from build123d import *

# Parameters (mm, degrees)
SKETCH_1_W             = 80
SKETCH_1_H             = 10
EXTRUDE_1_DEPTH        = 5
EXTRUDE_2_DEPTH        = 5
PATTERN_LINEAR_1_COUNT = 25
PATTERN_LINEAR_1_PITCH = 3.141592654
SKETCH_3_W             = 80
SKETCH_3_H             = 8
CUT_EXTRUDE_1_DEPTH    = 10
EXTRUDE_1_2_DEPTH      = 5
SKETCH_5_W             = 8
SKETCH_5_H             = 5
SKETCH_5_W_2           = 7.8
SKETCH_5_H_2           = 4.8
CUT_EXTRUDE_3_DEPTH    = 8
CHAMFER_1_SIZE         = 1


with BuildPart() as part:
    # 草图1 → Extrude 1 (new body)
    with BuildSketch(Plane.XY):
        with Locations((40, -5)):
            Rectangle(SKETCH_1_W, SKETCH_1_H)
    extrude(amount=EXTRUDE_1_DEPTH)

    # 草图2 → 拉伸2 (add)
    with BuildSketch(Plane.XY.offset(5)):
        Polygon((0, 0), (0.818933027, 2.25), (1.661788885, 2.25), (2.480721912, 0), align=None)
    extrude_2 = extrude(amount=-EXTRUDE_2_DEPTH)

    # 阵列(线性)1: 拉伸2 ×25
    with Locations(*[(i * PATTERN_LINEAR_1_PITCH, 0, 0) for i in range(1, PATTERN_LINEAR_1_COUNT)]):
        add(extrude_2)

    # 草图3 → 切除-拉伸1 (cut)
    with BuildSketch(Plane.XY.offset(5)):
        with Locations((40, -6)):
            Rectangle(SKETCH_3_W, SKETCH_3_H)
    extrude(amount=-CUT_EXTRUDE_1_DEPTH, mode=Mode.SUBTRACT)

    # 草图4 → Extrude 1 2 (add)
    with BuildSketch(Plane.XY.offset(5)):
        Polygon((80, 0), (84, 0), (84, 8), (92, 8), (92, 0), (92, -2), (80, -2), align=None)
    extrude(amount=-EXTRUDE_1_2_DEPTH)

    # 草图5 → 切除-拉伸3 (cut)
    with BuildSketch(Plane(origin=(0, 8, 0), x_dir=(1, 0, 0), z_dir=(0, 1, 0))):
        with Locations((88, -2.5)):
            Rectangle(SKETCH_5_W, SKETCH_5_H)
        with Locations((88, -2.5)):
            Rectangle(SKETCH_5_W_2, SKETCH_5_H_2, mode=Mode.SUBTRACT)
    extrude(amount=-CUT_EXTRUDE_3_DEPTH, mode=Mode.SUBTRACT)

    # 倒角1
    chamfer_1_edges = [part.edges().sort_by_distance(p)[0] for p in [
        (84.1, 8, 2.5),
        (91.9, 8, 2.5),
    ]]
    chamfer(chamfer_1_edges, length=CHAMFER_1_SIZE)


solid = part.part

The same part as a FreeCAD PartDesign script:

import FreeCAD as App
import Part
import Sketcher
Q = App.Units.Quantity


def edges_at(feature, points):
    """Names of the edges that pass closest to the given points."""
    edges = feature.Shape.Edges
    near = lambda p: min(range(len(edges)), key=lambda i: edges[i].distToShape(Part.Vertex(*p))[0])
    return sorted({f"Edge{near(p) + 1}" for p in points})


def add_polygon(sketch, points):
    """Adds a closed chain of lines whose ends are joined by coincident constraints."""
    first, n = sketch.GeometryCount, len(points)
    for a, b in zip(points, points[1:] + points[:1]):
        sketch.addGeometry(Part.LineSegment(App.Vector(*a, 0), App.Vector(*b, 0)), False)
    for i in range(n):
        sketch.addConstraint(Sketcher.Constraint("Coincident", first + i, 2, first + (i + 1) % n, 1))

doc = App.newDocument("Part")
params = doc.addObject("Spreadsheet::Sheet", "Params")
for row, (alias, value) in enumerate([
    ("sketch1_width", "80 mm"),
    ("sketch1_height", "10 mm"),
    ("pad1_length", "5 mm"),
    ("pad2_length", "5 mm"),
    ("linearpattern_pitch", "3.141593 mm"),
    ("sketch3_width", "80 mm"),
    ("sketch3_height", "8 mm"),
    ("pocket1_length", "10 mm"),
    ("sketch4_width", "4 mm"),
    ("sketch4_width2", "12 mm"),
    ("sketch4_height", "2 mm"),
    ("pad3_length", "5 mm"),
    ("sketch5_width", "8 mm"),
    ("sketch5_height", "5 mm"),
    ("sketch5_width2", "7.8 mm"),
    ("sketch5_height2", "4.8 mm"),
    ("pocket2_length", "8 mm"),
    ("chamfer_size", "1 mm"),
], start=1):
    params.set(f"A{row}", alias)
    params.set(f"B{row}", "=" + value)
    params.setAlias(f"B{row}", alias)

body = doc.addObject("PartDesign::Body", "Body")

# Sketch on XY plane
sketch1 = body.newObject("Sketcher::SketchObject", "Sketch")
sketch1.AttachmentSupport = (doc.getObject("XY_Plane"), [""])
sketch1.MapMode = "FlatFace"
add_polygon(sketch1, [(0, 0), (0, -10), (80, -10), (80, 0)])  # lines 0-3
sketch1.addConstraint(Sketcher.Constraint("Vertical", 0))
sketch1.addConstraint(Sketcher.Constraint("Horizontal", 1))
sketch1.addConstraint(Sketcher.Constraint("Vertical", 2))
sketch1.addConstraint(Sketcher.Constraint("Horizontal", 3))
sketch1.addConstraint(Sketcher.Constraint("Coincident", 3, 2, -1, 1))
sketch1.addConstraint(Sketcher.Constraint("DistanceX", 1, 1, 1, 2, 80.0))
sketch1.addConstraint(Sketcher.Constraint("DistanceY", 0, 2, 0, 1, 10.0))
sketch1.setExpression("Constraints[9]", "Params.sketch1_width")
sketch1.setExpression("Constraints[10]", "Params.sketch1_height")
pad1 = body.newObject("PartDesign::Pad", "Pad")
pad1.Profile = sketch1
pad1.setExpression("Length", "Params.pad1_length")

# Sketch on XY plane
sketch2 = body.newObject("Sketcher::SketchObject", "Sketch001")
sketch2.AttachmentSupport = (doc.getObject("XY_Plane"), [""])
sketch2.MapMode = "FlatFace"
sketch2.AttachmentOffset = App.Placement(App.Vector(0, 0, 5), App.Rotation())
add_polygon(sketch2, [(0.8, 2.2), (0, 0), (2.5, 0), (1.7, 2.2)])  # lines 0-3
sketch2.addConstraint(Sketcher.Constraint("Horizontal", 1))
sketch2.addConstraint(Sketcher.Constraint("Horizontal", 3))
sketch2.addConstraint(Sketcher.Constraint("Coincident", 0, 2, -1, 1))
sketch2.addConstraint(Sketcher.Constraint("Equal", 0, 2))
sketch2.addConstraint(Sketcher.Constraint("Angle", 0, Q("-110 deg")))
sketch2.addConstraint(Sketcher.Constraint("DistanceY", -1, 1, 2, 2, 2.25))
sketch2.addConstraint(Sketcher.Constraint("DistanceX", 1, 1, 1, 2, 2.480722))
pad2 = body.newObject("PartDesign::Pad", "Pad001")
pad2.Profile = sketch2
pad2.setExpression("Length", "Params.pad2_length")
pad2.Reversed = True
doc.recompute()

linearpattern = body.newObject("PartDesign::LinearPattern", "LinearPattern")
linearpattern.Originals = [pad2]
linearpattern.Direction = (doc.getObject("X_Axis"), [""])
linearpattern.Mode = "offset"
linearpattern.setExpression("Offset", "Params.linearpattern_pitch")
linearpattern.Occurrences = 25
body.Tip = linearpattern

# Sketch on XY plane
sketch3 = body.newObject("Sketcher::SketchObject", "Sketch002")
sketch3.AttachmentSupport = (doc.getObject("XY_Plane"), [""])
sketch3.MapMode = "FlatFace"
sketch3.AttachmentOffset = App.Placement(App.Vector(0, 0, 5), App.Rotation())
add_polygon(sketch3, [(0, -2), (0, -10), (80, -10), (80, -2)])  # lines 0-3
sketch3.addConstraint(Sketcher.Constraint("Vertical", 0))
sketch3.addConstraint(Sketcher.Constraint("Horizontal", 1))
sketch3.addConstraint(Sketcher.Constraint("Vertical", 2))
sketch3.addConstraint(Sketcher.Constraint("Horizontal", 3))
sketch3.addConstraint(Sketcher.Constraint("PointOnObject", 0, 2, -2))
sketch3.addConstraint(Sketcher.Constraint("DistanceX", 1, 1, 1, 2, 80.0))
sketch3.addConstraint(Sketcher.Constraint("DistanceY", 0, 2, 0, 1, 8.0))
sketch3.addConstraint(Sketcher.Constraint("DistanceY", 0, 2, -1, 1, 10.0))
sketch3.setExpression("Constraints[9]", "Params.sketch3_width")
sketch3.setExpression("Constraints[10]", "Params.sketch3_height")
pocket1 = body.newObject("PartDesign::Pocket", "Pocket")
pocket1.Profile = sketch3
pocket1.setExpression("Length", "Params.pocket1_length")

# Sketch on XY plane
sketch4 = body.newObject("Sketcher::SketchObject", "Sketch003")
sketch4.AttachmentSupport = (doc.getObject("XY_Plane"), [""])
sketch4.MapMode = "FlatFace"
sketch4.AttachmentOffset = App.Placement(App.Vector(0, 0, 5), App.Rotation())
add_polygon(sketch4, [(84, 0), (80, 0), (80, -2), (92, -2), (92, 8), (84, 8)])  # lines 0-5
sketch4.addConstraint(Sketcher.Constraint("Horizontal", 0))
sketch4.addConstraint(Sketcher.Constraint("Vertical", 1))
sketch4.addConstraint(Sketcher.Constraint("Horizontal", 2))
sketch4.addConstraint(Sketcher.Constraint("Vertical", 3))
sketch4.addConstraint(Sketcher.Constraint("Horizontal", 4))
sketch4.addConstraint(Sketcher.Constraint("Vertical", 5))
sketch4.addConstraint(Sketcher.Constraint("PointOnObject", 0, 2, -1))
sketch4.addConstraint(Sketcher.Constraint("Equal", 4, 5))
sketch4.addConstraint(Sketcher.Constraint("DistanceX", 0, 2, 0, 1, 4.0))
sketch4.addConstraint(Sketcher.Constraint("DistanceX", 2, 1, 2, 2, 12.0))
sketch4.addConstraint(Sketcher.Constraint("DistanceY", 1, 2, 1, 1, 2.0))
sketch4.addConstraint(Sketcher.Constraint("DistanceX", -1, 1, 0, 2, 80.0))
sketch4.setExpression("Constraints[14]", "Params.sketch4_width")
sketch4.setExpression("Constraints[15]", "Params.sketch4_width2")
sketch4.setExpression("Constraints[16]", "Params.sketch4_height")
pad3 = body.newObject("PartDesign::Pad", "Pad002")
pad3.Profile = sketch4
pad3.setExpression("Length", "Params.pad3_length")
pad3.Reversed = True

# Sketch on XZ plane
sketch5 = body.newObject("Sketcher::SketchObject", "Sketch004")
sketch5.AttachmentSupport = (doc.getObject("XZ_Plane"), [""])
sketch5.MapMode = "FlatFace"
sketch5.AttachmentOffset = App.Placement(App.Vector(0, 0, -8), App.Rotation())
add_polygon(sketch5, [(84, 0), (84, 5), (92, 5), (92, 0)])  # lines 0-3
add_polygon(sketch5, [(91.9, 4.9), (84.1, 4.9), (84.1, 0.1), (91.9, 0.1)])  # lines 4-7
sketch5.addConstraint(Sketcher.Constraint("Vertical", 0))
sketch5.addConstraint(Sketcher.Constraint("Horizontal", 1))
sketch5.addConstraint(Sketcher.Constraint("Vertical", 2))
sketch5.addConstraint(Sketcher.Constraint("Horizontal", 3))
sketch5.addConstraint(Sketcher.Constraint("Horizontal", 4))
sketch5.addConstraint(Sketcher.Constraint("Vertical", 5))
sketch5.addConstraint(Sketcher.Constraint("Horizontal", 6))
sketch5.addConstraint(Sketcher.Constraint("Vertical", 7))
sketch5.addConstraint(Sketcher.Constraint("PointOnObject", 2, 2, -1))
sketch5.addConstraint(Sketcher.Constraint("DistanceX", 1, 1, 1, 2, 8.0))
sketch5.addConstraint(Sketcher.Constraint("DistanceY", 0, 1, 0, 2, 5.0))
sketch5.addConstraint(Sketcher.Constraint("DistanceX", 4, 2, 4, 1, 7.8))
sketch5.addConstraint(Sketcher.Constraint("DistanceY", 5, 2, 5, 1, 4.8))
sketch5.addConstraint(Sketcher.Constraint("DistanceX", -1, 1, 0, 2, 84.0))
sketch5.addConstraint(Sketcher.Constraint("DistanceX", -1, 1, 4, 2, 84.1))
sketch5.addConstraint(Sketcher.Constraint("DistanceY", -1, 1, 4, 2, 4.9))
sketch5.setExpression("Constraints[17]", "Params.sketch5_width")
sketch5.setExpression("Constraints[18]", "Params.sketch5_height")
sketch5.setExpression("Constraints[19]", "Params.sketch5_width2")
sketch5.setExpression("Constraints[20]", "Params.sketch5_height2")
pocket2 = body.newObject("PartDesign::Pocket", "Pocket001")
pocket2.Profile = sketch5
pocket2.setExpression("Length", "Params.pocket2_length")
pocket2.Reversed = True
doc.recompute()

chamfer = body.newObject("PartDesign::Chamfer", "Chamfer")
chamfer.Base = (pocket2, edges_at(pocket2, [(84.1, 8, 2.5), (91.9, 8, 2.5)]))
chamfer.setExpression("Size", "Params.chamfer_size")

doc.recompute()
